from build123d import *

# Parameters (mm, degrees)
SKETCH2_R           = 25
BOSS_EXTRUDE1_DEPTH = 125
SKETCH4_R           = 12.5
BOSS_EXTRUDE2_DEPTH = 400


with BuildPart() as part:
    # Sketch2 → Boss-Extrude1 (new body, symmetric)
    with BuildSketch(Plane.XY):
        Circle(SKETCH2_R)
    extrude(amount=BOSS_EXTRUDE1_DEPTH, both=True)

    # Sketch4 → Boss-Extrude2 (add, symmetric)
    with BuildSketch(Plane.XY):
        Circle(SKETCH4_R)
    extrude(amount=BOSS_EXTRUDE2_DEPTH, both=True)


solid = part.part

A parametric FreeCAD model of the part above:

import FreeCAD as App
import Part
import Sketcher

V = App.Vector

doc = App.newDocument("Part")
params = doc.addObject("Spreadsheet::Sheet", "Params")
for row, (alias, value) in enumerate([
    ("sketch1_diameter", "50 mm"),
    ("pad1_length", "250 mm"),
    ("sketch2_diameter", "25 mm"),
    ("pad2_length", "800 mm"),
], start=1):
    params.set(f"A{row}", alias)
    params.set(f"B{row}", "=" + value)
    params.setAlias(f"B{row}", alias)

body = doc.addObject("PartDesign::Body", "Body")

# Sketch on XY plane
sketch1 = body.newObject("Sketcher::SketchObject", "Sketch")
sketch1.AttachmentSupport = (doc.getObject("XY_Plane"), [""])
sketch1.MapMode = "FlatFace"
sketch1.addGeometry(Part.Circle(V(0, 0, 0), V(0, 0, 1), 25), False)
sketch1.addConstraint(Sketcher.Constraint("Coincident", 0, 3, -1, 1))
sketch1.addConstraint(Sketcher.Constraint("Diameter", 0, 50.0))
sketch1.setExpression("Constraints[1]", "Params.sketch1_diameter")
pad1 = body.newObject("PartDesign::Pad", "Pad")
pad1.Profile = sketch1
pad1.setExpression("Length", "Params.pad1_length")
pad1.Midplane = True

# Sketch on XY plane
sketch2 = body.newObject("Sketcher::SketchObject", "Sketch001")
sketch2.AttachmentSupport = (doc.getObject("XY_Plane"), [""])
sketch2.MapMode = "FlatFace"
sketch2.addGeometry(Part.Circle(V(0, 0, 0), V(0, 0, 1), 12.5), False)
sketch2.addConstraint(Sketcher.Constraint("Coincident", 0, 3, -1, 1))
sketch2.addConstraint(Sketcher.Constraint("Diameter", 0, 25.0))
sketch2.setExpression("Constraints[1]", "Params.sketch2_diameter")
pad2 = body.newObject("PartDesign::Pad", "Pad001")
pad2.Profile = sketch2
pad2.setExpression("Length", "Params.pad2_length")
pad2.Midplane = True

doc.recompute()
